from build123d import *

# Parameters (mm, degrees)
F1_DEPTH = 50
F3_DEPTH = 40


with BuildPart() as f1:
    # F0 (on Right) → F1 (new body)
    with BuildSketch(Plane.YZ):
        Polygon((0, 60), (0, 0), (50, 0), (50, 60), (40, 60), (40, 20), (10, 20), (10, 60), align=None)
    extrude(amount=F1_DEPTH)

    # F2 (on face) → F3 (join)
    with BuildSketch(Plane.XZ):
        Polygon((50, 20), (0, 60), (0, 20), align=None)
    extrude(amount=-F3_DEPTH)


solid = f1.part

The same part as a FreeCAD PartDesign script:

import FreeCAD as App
import Part
import Sketcher
from FreeCAD import Vector

doc = App.newDocument("Part")
body = doc.addObject("PartDesign::Body", "Body")

sketch1 = body.newObject("Sketcher::SketchObject", "Sketch")
sketch1.AttachmentSupport = (doc.getObject("YZ_Plane"), [""])
sketch1.MapMode = "FlatFace"
sketch1.addGeometry(Part.LineSegment(Vector(0, 60, 0), Vector(0, 0, 0)), False)
sketch1.addGeometry(Part.LineSegment(Vector(0, 0, 0), Vector(50, 0, 0)), False)
sketch1.addGeometry(Part.LineSegment(Vector(50, 0, 0), Vector(50, 60, 0)), False)
sketch1.addGeometry(Part.LineSegment(Vector(50, 60, 0), Vector(40, 60, 0)), False)
sketch1.addGeometry(Part.LineSegment(Vector(40, 60, 0), Vector(40, 20, 0)), False)
sketch1.addGeometry(Part.LineSegment(Vector(40, 20, 0), Vector(10, 20, 0)), False)
sketch1.addGeometry(Part.LineSegment(Vector(10, 20, 0), Vector(10, 60, 0)), False)
sketch1.addGeometry(Part.LineSegment(Vector(10, 60, 0), Vector(0, 60, 0)), False)
sketch1.addConstraint(Sketcher.Constraint("Coincident", 0, 2, 1, 1))
sketch1.addConstraint(Sketcher.Constraint("Coincident", 1, 2, 2, 1))
sketch1.addConstraint(Sketcher.Constraint("Coincident", 2, 2, 3, 1))
sketch1.addConstraint(Sketcher.Constraint("Coincident", 3, 2, 4, 1))
sketch1.addConstraint(Sketcher.Constraint("Coincident", 4, 2, 5, 1))
sketch1.addConstraint(Sketcher.Constraint("Coincident", 5, 2, 6, 1))
sketch1.addConstraint(Sketcher.Constraint("Coincident", 6, 2, 7, 1))
sketch1.addConstraint(Sketcher.Constraint("Coincident", 7, 2, 0, 1))
sketch1.addConstraint(Sketcher.Constraint("Vertical", 0))
sketch1.addConstraint(Sketcher.Constraint("Horizontal", 1))
sketch1.addConstraint(Sketcher.Constraint("Vertical", 2))
sketch1.addConstraint(Sketcher.Constraint("Horizontal", 3))
sketch1.addConstraint(Sketcher.Constraint("Vertical", 4))
sketch1.addConstraint(Sketcher.Constraint("Horizontal", 5))
sketch1.addConstraint(Sketcher.Constraint("Vertical", 6))
sketch1.addConstraint(Sketcher.Constraint("Horizontal", 7))
sketch1.addConstraint(Sketcher.Constraint("Coincident", 0, 2, -1, 1))
sketch1.addConstraint(Sketcher.Constraint("Horizontal", 3, 2, 6, 2))
sketch1.addConstraint(Sketcher.Constraint("Equal", 3, 7))
sketch1.addConstraint(Sketcher.Constraint("DistanceX", 1, 1, 1, 2, 50.0))
sketch1.addConstraint(Sketcher.Constraint("DistanceX", 3, 2, 3, 1, 10.0))
sketch1.addConstraint(Sketcher.Constraint("DistanceY", 0, 2, 0, 1, 60.0))
sketch1.addConstraint(Sketcher.Constraint("DistanceY", 4, 2, 4, 1, 40.0))
pad1 = body.newObject("PartDesign::Pad", "Pad")
pad1.Profile = sketch1
pad1.Length = 50

sketch2 = body.newObject("Sketcher::SketchObject", "Sketch001")
sketch2.AttachmentSupport = (doc.getObject("XZ_Plane"), [""])
sketch2.MapMode = "FlatFace"
sketch2.addGeometry(Part.LineSegment(Vector(50, 20, 0), Vector(0, 60, 0)), False)
sketch2.addGeometry(Part.LineSegment(Vector(0, 60, 0), Vector(0, 20, 0)), False)
sketch2.addGeometry(Part.LineSegment(Vector(0, 20, 0), Vector(50, 20, 0)), False)
sketch2.addConstraint(Sketcher.Constraint("Coincident", 0, 2, 1, 1))
sketch2.addConstraint(Sketcher.Constraint("Coincident", 1, 2, 2, 1))
sketch2.addConstraint(Sketcher.Constraint("Coincident", 2, 2, 0, 1))
sketch2.addConstraint(Sketcher.Constraint("Vertical", 1))
sketch2.addConstraint(Sketcher.Constraint("Horizontal", 2))
sketch2.addConstraint(Sketcher.Constraint("PointOnObject", 0, 2, -2))
sketch2.addConstraint(Sketcher.Constraint("DistanceX", 2, 1, 2, 2, 50.0))
sketch2.addConstraint(Sketcher.Constraint("DistanceY", 1, 2, 1, 1, 40.0))
sketch2.addConstraint(Sketcher.Constraint("DistanceY", -1, 1, 0, 2, 60.0))
pad2 = body.newObject("PartDesign::Pad", "Pad001")
pad2.Profile = sketch2
pad2.Length = 40
pad2.Reversed = True

doc.recompute()
